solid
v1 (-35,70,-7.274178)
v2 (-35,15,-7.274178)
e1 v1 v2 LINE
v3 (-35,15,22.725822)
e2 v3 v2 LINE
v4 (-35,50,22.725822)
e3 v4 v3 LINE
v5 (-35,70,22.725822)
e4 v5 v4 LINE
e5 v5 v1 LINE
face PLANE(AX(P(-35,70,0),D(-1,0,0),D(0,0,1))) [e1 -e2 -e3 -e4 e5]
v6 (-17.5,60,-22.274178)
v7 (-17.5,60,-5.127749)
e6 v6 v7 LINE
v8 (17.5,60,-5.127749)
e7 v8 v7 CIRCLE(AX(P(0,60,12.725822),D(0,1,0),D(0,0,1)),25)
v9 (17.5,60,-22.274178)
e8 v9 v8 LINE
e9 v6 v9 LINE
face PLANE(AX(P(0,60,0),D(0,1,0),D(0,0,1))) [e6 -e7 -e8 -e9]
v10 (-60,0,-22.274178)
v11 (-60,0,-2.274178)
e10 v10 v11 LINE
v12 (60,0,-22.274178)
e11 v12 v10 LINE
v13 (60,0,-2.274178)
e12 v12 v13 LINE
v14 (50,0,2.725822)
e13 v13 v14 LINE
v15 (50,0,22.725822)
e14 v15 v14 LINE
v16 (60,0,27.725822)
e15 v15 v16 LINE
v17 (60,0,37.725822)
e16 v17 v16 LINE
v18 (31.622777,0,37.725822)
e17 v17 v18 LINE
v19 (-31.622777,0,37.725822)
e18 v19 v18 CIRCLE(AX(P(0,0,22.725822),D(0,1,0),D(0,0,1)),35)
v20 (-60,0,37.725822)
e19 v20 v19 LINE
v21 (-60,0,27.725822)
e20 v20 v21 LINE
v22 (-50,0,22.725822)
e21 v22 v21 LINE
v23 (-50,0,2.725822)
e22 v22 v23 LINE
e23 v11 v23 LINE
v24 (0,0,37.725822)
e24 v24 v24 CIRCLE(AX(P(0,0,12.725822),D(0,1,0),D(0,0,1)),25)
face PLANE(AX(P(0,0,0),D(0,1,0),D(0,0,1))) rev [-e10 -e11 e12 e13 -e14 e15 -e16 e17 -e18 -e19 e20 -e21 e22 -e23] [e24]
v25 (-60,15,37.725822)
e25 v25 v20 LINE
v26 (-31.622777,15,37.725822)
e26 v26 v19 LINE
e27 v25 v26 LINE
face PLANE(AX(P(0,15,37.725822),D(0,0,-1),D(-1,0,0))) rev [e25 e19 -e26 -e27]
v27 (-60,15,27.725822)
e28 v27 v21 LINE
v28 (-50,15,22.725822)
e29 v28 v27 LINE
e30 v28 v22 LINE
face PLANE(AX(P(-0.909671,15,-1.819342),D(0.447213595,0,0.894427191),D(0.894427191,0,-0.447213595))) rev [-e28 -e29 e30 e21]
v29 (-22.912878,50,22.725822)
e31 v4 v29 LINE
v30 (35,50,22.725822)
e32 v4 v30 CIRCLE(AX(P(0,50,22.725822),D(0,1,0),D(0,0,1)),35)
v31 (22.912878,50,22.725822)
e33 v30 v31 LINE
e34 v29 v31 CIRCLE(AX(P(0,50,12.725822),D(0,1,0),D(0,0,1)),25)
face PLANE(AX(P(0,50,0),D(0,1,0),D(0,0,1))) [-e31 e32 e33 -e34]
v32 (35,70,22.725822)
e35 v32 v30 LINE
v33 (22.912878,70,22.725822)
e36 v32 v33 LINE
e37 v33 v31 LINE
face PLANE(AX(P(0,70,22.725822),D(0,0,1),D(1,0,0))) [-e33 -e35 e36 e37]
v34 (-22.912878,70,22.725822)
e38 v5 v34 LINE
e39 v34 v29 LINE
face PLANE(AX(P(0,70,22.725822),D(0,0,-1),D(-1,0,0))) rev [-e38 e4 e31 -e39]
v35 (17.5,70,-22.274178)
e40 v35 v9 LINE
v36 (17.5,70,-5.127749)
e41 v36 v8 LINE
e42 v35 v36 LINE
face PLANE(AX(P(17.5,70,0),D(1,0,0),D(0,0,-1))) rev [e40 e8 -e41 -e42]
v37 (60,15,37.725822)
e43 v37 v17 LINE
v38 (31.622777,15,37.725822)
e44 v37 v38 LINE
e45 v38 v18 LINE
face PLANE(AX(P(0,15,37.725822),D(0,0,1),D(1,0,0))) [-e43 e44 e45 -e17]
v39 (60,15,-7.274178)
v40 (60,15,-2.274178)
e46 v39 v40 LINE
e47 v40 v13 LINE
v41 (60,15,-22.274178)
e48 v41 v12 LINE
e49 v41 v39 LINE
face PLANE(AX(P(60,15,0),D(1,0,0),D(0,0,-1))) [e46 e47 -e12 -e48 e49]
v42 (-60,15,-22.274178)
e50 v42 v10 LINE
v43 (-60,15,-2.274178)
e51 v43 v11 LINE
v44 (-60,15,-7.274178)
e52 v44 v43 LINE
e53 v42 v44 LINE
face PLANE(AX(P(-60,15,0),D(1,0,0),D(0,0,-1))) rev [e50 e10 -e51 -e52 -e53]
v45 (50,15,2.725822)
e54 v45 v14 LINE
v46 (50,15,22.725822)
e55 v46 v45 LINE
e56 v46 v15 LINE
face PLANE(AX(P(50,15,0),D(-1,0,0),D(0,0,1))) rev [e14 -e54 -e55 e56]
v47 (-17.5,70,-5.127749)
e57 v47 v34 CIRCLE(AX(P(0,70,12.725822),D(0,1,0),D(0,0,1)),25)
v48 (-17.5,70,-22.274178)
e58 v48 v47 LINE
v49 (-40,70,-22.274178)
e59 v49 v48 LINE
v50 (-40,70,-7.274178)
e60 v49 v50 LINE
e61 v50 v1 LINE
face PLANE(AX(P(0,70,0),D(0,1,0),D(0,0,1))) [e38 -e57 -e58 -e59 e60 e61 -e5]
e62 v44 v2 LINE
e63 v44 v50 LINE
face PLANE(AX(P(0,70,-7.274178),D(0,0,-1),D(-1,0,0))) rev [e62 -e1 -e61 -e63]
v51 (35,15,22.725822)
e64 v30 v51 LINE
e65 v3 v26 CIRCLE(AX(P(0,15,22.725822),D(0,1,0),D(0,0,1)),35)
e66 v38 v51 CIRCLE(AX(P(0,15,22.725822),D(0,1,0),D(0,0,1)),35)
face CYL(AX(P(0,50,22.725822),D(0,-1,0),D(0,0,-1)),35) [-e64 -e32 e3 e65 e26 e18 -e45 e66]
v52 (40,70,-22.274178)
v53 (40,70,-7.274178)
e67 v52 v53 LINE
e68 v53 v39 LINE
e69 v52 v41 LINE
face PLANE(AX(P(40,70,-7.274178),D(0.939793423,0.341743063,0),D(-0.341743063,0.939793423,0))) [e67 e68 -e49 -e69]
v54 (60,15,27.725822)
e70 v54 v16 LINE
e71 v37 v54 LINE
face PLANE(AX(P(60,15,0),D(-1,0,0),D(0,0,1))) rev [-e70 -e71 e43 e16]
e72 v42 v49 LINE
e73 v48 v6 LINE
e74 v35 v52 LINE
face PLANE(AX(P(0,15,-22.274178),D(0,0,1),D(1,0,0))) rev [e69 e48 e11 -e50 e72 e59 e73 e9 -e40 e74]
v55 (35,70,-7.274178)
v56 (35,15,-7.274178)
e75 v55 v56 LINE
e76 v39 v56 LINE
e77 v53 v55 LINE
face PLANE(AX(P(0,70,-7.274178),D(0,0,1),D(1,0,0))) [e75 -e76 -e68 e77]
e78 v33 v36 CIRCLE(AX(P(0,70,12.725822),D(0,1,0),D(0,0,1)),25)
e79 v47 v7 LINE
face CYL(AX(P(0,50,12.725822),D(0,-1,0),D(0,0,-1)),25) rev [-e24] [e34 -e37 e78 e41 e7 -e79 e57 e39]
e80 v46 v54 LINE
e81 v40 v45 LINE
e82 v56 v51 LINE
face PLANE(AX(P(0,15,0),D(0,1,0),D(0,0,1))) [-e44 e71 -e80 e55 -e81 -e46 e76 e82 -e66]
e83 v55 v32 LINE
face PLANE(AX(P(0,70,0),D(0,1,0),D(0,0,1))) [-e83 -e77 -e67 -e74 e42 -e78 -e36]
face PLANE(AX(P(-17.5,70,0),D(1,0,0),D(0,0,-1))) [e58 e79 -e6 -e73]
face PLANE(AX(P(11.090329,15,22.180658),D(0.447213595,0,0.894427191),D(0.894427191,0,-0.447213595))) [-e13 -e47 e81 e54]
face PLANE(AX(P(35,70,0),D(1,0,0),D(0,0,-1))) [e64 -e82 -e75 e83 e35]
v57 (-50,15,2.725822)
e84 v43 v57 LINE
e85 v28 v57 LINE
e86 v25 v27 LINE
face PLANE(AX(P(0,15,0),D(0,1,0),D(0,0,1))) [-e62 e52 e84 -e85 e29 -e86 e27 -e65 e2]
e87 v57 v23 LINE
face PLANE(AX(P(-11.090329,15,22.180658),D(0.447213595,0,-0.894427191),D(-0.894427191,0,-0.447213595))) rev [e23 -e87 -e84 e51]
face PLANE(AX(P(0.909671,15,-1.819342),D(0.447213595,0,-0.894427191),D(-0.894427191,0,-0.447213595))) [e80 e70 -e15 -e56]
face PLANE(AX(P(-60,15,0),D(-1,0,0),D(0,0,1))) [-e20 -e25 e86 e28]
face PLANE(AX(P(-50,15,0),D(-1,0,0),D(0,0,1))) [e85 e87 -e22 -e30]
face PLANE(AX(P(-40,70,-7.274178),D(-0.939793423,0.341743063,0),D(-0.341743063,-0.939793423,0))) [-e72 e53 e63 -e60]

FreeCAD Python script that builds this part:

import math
import FreeCAD as App
import Part
import Sketcher
Q = App.Units.Quantity


def add_polygon(sketch, points):
    """Adds a closed chain of lines whose ends are joined by coincident constraints."""
    first, n = sketch.GeometryCount, len(points)
    for a, b in zip(points, points[1:] + points[:1]):
        sketch.addGeometry(Part.LineSegment(App.Vector(*a, 0), App.Vector(*b, 0)), False)
    for i in range(n):
        sketch.addConstraint(Sketcher.Constraint("Coincident", first + i, 2, first + (i + 1) % n, 1))

doc = App.newDocument("Part")
body = doc.addObject("PartDesign::Body", "Body")

sketch1 = body.newObject("Sketcher::SketchObject", "Sketch")
sketch1.AttachmentSupport = (doc.getObject("XZ_Plane"), [""])
sketch1.MapMode = "FlatFace"
sketch1.addGeometry([
    Part.ArcOfCircle(Part.Circle(App.Vector(0, 22.725822, 0), App.Vector(0, 0, 1), 35), math.radians(154.623066), math.radians(180)),
    Part.LineSegment(App.Vector(-35, 22.725822, 0), App.Vector(-35, -7.274178, 0)),
    Part.LineSegment(App.Vector(-35, -7.274178, 0), App.Vector(-40, -7.274178, 0)),
    Part.LineSegment(App.Vector(-40, -7.274178, 0), App.Vector(-40, -22.274178, 0)),
    Part.LineSegment(App.Vector(-40, -22.274178, 0), App.Vector(-60, -22.274178, 0)),
    Part.LineSegment(App.Vector(-60, -22.274178, 0), App.Vector(-60, -2.274178, 0)),
    Part.LineSegment(App.Vector(-60, -2.274178, 0), App.Vector(-50, 2.725822, 0)),
    Part.LineSegment(App.Vector(-50, 2.725822, 0), App.Vector(-50, 22.725822, 0)),
    Part.LineSegment(App.Vector(-50, 22.725822, 0), App.Vector(-60, 27.725822, 0)),
    Part.LineSegment(App.Vector(-60, 27.725822, 0), App.Vector(-60, 37.725822, 0)),
    Part.LineSegment(App.Vector(-60, 37.725822, 0), App.Vector(-31.622777, 37.725822, 0)),
], False)
sketch1.addConstraint([
    Sketcher.Constraint("Tangent", 0, 2, 1, 1),
    Sketcher.Constraint("Coincident", 1, 2, 2, 1),
    Sketcher.Constraint("Coincident", 2, 2, 3, 1),
    Sketcher.Constraint("Coincident", 3, 2, 4, 1),
    Sketcher.Constraint("Coincident", 4, 2, 5, 1),
    Sketcher.Constraint("Coincident", 5, 2, 6, 1),
    Sketcher.Constraint("Coincident", 6, 2, 7, 1),
    Sketcher.Constraint("Coincident", 7, 2, 8, 1),
    Sketcher.Constraint("Coincident", 8, 2, 9, 1),
    Sketcher.Constraint("Coincident", 9, 2, 10, 1),
    Sketcher.Constraint("Coincident", 10, 2, 0, 1),
    Sketcher.Constraint("Vertical", 1),
    Sketcher.Constraint("Horizontal", 2),
    Sketcher.Constraint("Vertical", 3),
    Sketcher.Constraint("Horizontal", 4),
    Sketcher.Constraint("Vertical", 5),
    Sketcher.Constraint("Vertical", 7),
    Sketcher.Constraint("Vertical", 9),
    Sketcher.Constraint("Horizontal", 10),
    Sketcher.Constraint("PointOnObject", 0, 3, -2),
    Sketcher.Constraint("Horizontal", 0, 2, 7, 2),
    Sketcher.Constraint("Vertical", 5, 2, 8, 2),
    Sketcher.Constraint("Equal", 4, 5),
    Sketcher.Constraint("Equal", 5, 7),
    Sketcher.Constraint("Equal", 6, 8),
    Sketcher.Constraint("Radius", 0, Q("35 mm")),
    Sketcher.Constraint("DistanceX", 2, 2, 2, 1, Q("5 mm")),
    Sketcher.Constraint("DistanceX", 4, 2, 4, 1, Q("20 mm")),
    Sketcher.Constraint("DistanceY", 1, 2, 1, 1, Q("30 mm")),
    Sketcher.Constraint("DistanceY", 3, 2, 3, 1, Q("15 mm")),
    Sketcher.Constraint("DistanceY", 9, 1, 9, 2, Q("10 mm")),
    Sketcher.Constraint("DistanceX", 6, 2, -1, 1, Q("50 mm")),
    Sketcher.Constraint("DistanceY", -1, 1, 0, 3, Q("22.725822 mm")),
])
pad1 = body.newObject("PartDesign::Pad", "Pad")
pad1.Profile = sketch1
pad1.Length = 15
pad1.Reversed = True
body2 = doc.addObject("PartDesign::Body", "Body001")

sketch2 = body2.newObject("Sketcher::SketchObject", "Sketch001")
sketch2.AttachmentSupport = (doc.getObject("XZ_Plane001"), [""])
sketch2.MapMode = "FlatFace"
sketch2.addGeometry([
    Part.ArcOfCircle(Part.Circle(App.Vector(0, 22.725822, 0), App.Vector(0, 0, 1), 35), math.radians(0), math.radians(25.376934)),
    Part.LineSegment(App.Vector(31.622777, 37.725822, 0), App.Vector(60, 37.725822, 0)),
    Part.LineSegment(App.Vector(60, 37.725822, 0), App.Vector(60, 27.725822, 0)),
    Part.LineSegment(App.Vector(60, 27.725822, 0), App.Vector(50, 22.725822, 0)),
    Part.LineSegment(App.Vector(50, 22.725822, 0), App.Vector(50, 2.725822, 0)),
    Part.LineSegment(App.Vector(50, 2.725822, 0), App.Vector(60, -2.274178, 0)),
    Part.LineSegment(App.Vector(60, -2.274178, 0), App.Vector(60, -22.274178, 0)),
    Part.LineSegment(App.Vector(60, -22.274178, 0), App.Vector(40, -22.274178, 0)),
    Part.LineSegment(App.Vector(40, -22.274178, 0), App.Vector(40, -7.274178, 0)),
    Part.LineSegment(App.Vector(40, -7.274178, 0), App.Vector(35, -7.274178, 0)),
    Part.LineSegment(App.Vector(35, -7.274178, 0), App.Vector(35, 22.725822, 0)),
], False)
sketch2.addConstraint([
    Sketcher.Constraint("Coincident", 0, 2, 1, 1),
    Sketcher.Constraint("Coincident", 1, 2, 2, 1),
    Sketcher.Constraint("Coincident", 2, 2, 3, 1),
    Sketcher.Constraint("Coincident", 3, 2, 4, 1),
    Sketcher.Constraint("Coincident", 4, 2, 5, 1),
    Sketcher.Constraint("Coincident", 5, 2, 6, 1),
    Sketcher.Constraint("Coincident", 6, 2, 7, 1),
    Sketcher.Constraint("Coincident", 7, 2, 8, 1),
    Sketcher.Constraint("Coincident", 8, 2, 9, 1),
    Sketcher.Constraint("Coincident", 9, 2, 10, 1),
    Sketcher.Constraint("Tangent", 10, 2, 0, 1),
    Sketcher.Constraint("Horizontal", 1),
    Sketcher.Constraint("Vertical", 2),
    Sketcher.Constraint("Vertical", 4),
    Sketcher.Constraint("Vertical", 6),
    Sketcher.Constraint("Horizontal", 7),
    Sketcher.Constraint("Vertical", 8),
    Sketcher.Constraint("Horizontal", 9),
    Sketcher.Constraint("Vertical", 10),
    Sketcher.Constraint("PointOnObject", 0, 3, -2),
    Sketcher.Constraint("Horizontal", 0, 3, 3, 2),
    Sketcher.Constraint("Vertical", 2, 2, 5, 2),
    Sketcher.Constraint("Equal", 7, 4),
    Sketcher.Constraint("Equal", 4, 6),
    Sketcher.Constraint("Equal", 3, 5),
    Sketcher.Constraint("Radius", 0, Q("35 mm")),
    Sketcher.Constraint("DistanceX", 7, 2, 7, 1, Q("20 mm")),
    Sketcher.Constraint("DistanceX", 9, 2, 9, 1, Q("5 mm")),
    Sketcher.Constraint("DistanceY", 2, 2, 2, 1, Q("10 mm")),
    Sketcher.Constraint("DistanceY", 8, 1, 8, 2, Q("15 mm")),
    Sketcher.Constraint("DistanceY", 10, 1, 10, 2, Q("30 mm")),
    Sketcher.Constraint("DistanceX", -1, 1, 3, 2, Q("50 mm")),
    Sketcher.Constraint("DistanceY", -1, 1, 0, 3, Q("22.725822 mm")),
])
pad2 = body2.newObject("PartDesign::Pad", "Pad001")
pad2.Profile = sketch2
pad2.Length = 15
pad2.Reversed = True
body.AllowCompound = True
doc.recompute()

boolean = body.newObject("PartDesign::Boolean", "Boolean")
boolean.Type = "Fuse"
boolean.addObjects([body2])

sketch3 = body.newObject("Sketcher::SketchObject", "Sketch002")
sketch3.AttachmentSupport = (doc.getObject("XZ_Plane"), [""])
sketch3.MapMode = "FlatFace"
sketch3.addGeometry([
    Part.LineSegment(App.Vector(-22.912878, 22.725822, 0), App.Vector(-35, 22.725822, 0)),
    Part.ArcOfCircle(Part.Circle(App.Vector(0, 22.725822, 0), App.Vector(0, 0, 1), 35), math.radians(154.623066), math.radians(180)),
    Part.ArcOfCircle(Part.Circle(App.Vector(0, 22.725822, 0), App.Vector(0, 0, 1), 35), math.radians(90), math.radians(154.623066)),
    Part.ArcOfCircle(Part.Circle(App.Vector(0, 22.725822, 0), App.Vector(0, 0, 1), 35), math.radians(25.376934), math.radians(90)),
    Part.ArcOfCircle(Part.Circle(App.Vector(0, 22.725822, 0), App.Vector(0, 0, 1), 35), math.radians(0), math.radians(25.376934)),
    Part.LineSegment(App.Vector(35, 22.725822, 0), App.Vector(22.912878, 22.725822, 0)),
    Part.ArcOfCircle(Part.Circle(App.Vector(0, 12.725822, 0), App.Vector(0, 0, 1), 25), math.radians(23.578178), math.radians(90)),
    Part.ArcOfCircle(Part.Circle(App.Vector(0, 12.725822, 0), App.Vector(0, 0, 1), 25), math.radians(90), math.radians(156.421822)),
], False)
sketch3.addConstraint([
    Sketcher.Constraint("Coincident", 0, 2, 1, 2),
    Sketcher.Constraint("Tangent", 1, 1, 2, 2),
    Sketcher.Constraint("Tangent", 2, 1, 3, 2),
    Sketcher.Constraint("Tangent", 3, 1, 4, 2),
    Sketcher.Constraint("Coincident", 4, 1, 5, 1),
    Sketcher.Constraint("Coincident", 5, 2, 6, 1),
    Sketcher.Constraint("Tangent", 6, 2, 7, 1),
    Sketcher.Constraint("Coincident", 7, 2, 0, 1),
    Sketcher.Constraint("Horizontal", 0),
    Sketcher.Constraint("Horizontal", 5),
    Sketcher.Constraint("Coincident", 3, 3, 1, 3),
    Sketcher.Constraint("Equal", 3, 4),
    Sketcher.Constraint("Equal", 6, 7),
    Sketcher.Constraint("Symmetric", 1, 1, 3, 1, -2),
    Sketcher.Constraint("Symmetric", 5, 2, 7, 2, -2),
    Sketcher.Constraint("PointOnObject", 2, 1, -2),
    Sketcher.Constraint("PointOnObject", 6, 2, -2),
    Sketcher.Constraint("Horizontal", 4, 3, 0, 2),
    Sketcher.Constraint("Horizontal", 3, 1, 6, 2),
    Sketcher.Constraint("Radius", 1, Q("35 mm")),
    Sketcher.Constraint("Radius", 6, Q("25 mm")),
    Sketcher.Constraint("DistanceY", 6, 3, 1, 3, Q("10 mm")),
    Sketcher.Constraint("DistanceY", -1, 1, 1, 3, Q("22.725822 mm")),
])
pad3 = body.newObject("PartDesign::Pad", "Pad002")
pad3.Profile = sketch3
pad3.Length = 50
pad3.Reversed = True

sketch4 = body.newObject("Sketcher::SketchObject", "Sketch003")
sketch4.AttachmentSupport = (doc.getObject("XZ_Plane"), [""])
sketch4.MapMode = "FlatFace"
sketch4.addGeometry([
    Part.LineSegment(App.Vector(-35, -7.274178, 0), App.Vector(-35, 22.725822, 0)),
    Part.LineSegment(App.Vector(-35, 22.725822, 0), App.Vector(-22.912878, 22.725822, 0)),
    Part.ArcOfCircle(Part.Circle(App.Vector(0, 12.725822, 0), App.Vector(0, 0, 1), 25), math.radians(156.421822), math.radians(225.572996)),
    Part.LineSegment(App.Vector(-17.5, -5.127749, 0), App.Vector(-17.5, -22.274178, 0)),
    Part.LineSegment(App.Vector(-17.5, -22.274178, 0), App.Vector(-40, -22.274178, 0)),
    Part.LineSegment(App.Vector(-40, -22.274178, 0), App.Vector(-40, -7.274178, 0)),
    Part.LineSegment(App.Vector(-40, -7.274178, 0), App.Vector(-35, -7.274178, 0)),
    Part.ArcOfCircle(Part.Circle(App.Vector(0, 12.725822, 0), App.Vector(0, 0, 1), 25), math.radians(0), math.radians(23.578178)),
    Part.LineSegment(App.Vector(22.912878, 22.725822, 0), App.Vector(35, 22.725822, 0)),
    Part.LineSegment(App.Vector(35, 22.725822, 0), App.Vector(35, -7.274178, 0)),
    Part.LineSegment(App.Vector(35, -7.274178, 0), App.Vector(40, -7.274178, 0)),
    Part.LineSegment(App.Vector(40, -7.274178, 0), App.Vector(40, -22.274178, 0)),
    Part.LineSegment(App.Vector(40, -22.274178, 0), App.Vector(17.5, -22.274178, 0)),
    Part.LineSegment(App.Vector(17.5, -22.274178, 0), App.Vector(17.5, -5.127749, 0)),
    Part.ArcOfCircle(Part.Circle(App.Vector(0, 12.725822, 0), App.Vector(0, 0, 1), 25), math.radians(-45.572996), math.radians(0)),
], False)
sketch4.addConstraint([
    Sketcher.Constraint("Coincident", 0, 2, 1, 1),
    Sketcher.Constraint("Coincident", 1, 2, 2, 1),
    Sketcher.Constraint("Coincident", 2, 2, 3, 1),
    Sketcher.Constraint("Coincident", 3, 2, 4, 1),
    Sketcher.Constraint("Coincident", 4, 2, 5, 1),
    Sketcher.Constraint("Coincident", 5, 2, 6, 1),
    Sketcher.Constraint("Coincident", 6, 2, 0, 1),
    Sketcher.Constraint("Coincident", 7, 2, 8, 1),
    Sketcher.Constraint("Coincident", 8, 2, 9, 1),
    Sketcher.Constraint("Coincident", 9, 2, 10, 1),
    Sketcher.Constraint("Coincident", 10, 2, 11, 1),
    Sketcher.Constraint("Coincident", 11, 2, 12, 1),
    Sketcher.Constraint("Coincident", 12, 2, 13, 1),
    Sketcher.Constraint("Coincident", 13, 2, 14, 1),
    Sketcher.Constraint("Tangent", 14, 2, 7, 1),
    Sketcher.Constraint("Vertical", 0),
    Sketcher.Constraint("Horizontal", 1),
    Sketcher.Constraint("Vertical", 3),
    Sketcher.Constraint("Horizontal", 4),
    Sketcher.Constraint("Vertical", 5),
    Sketcher.Constraint("Horizontal", 6),
    Sketcher.Constraint("Horizontal", 8),
    Sketcher.Constraint("Vertical", 9),
    Sketcher.Constraint("Horizontal", 10),
    Sketcher.Constraint("Vertical", 11),
    Sketcher.Constraint("Horizontal", 12),
    Sketcher.Constraint("Vertical", 13),
    Sketcher.Constraint("Coincident", 7, 3, 2, 3),
    Sketcher.Constraint("Equal", 2, 7),
    Sketcher.Constraint("Equal", 7, 14),
    Sketcher.Constraint("Symmetric", 1, 2, 7, 2, -2),
    Sketcher.Constraint("Symmetric", 6, 2, 9, 2, -2),
    Sketcher.Constraint("Symmetric", 4, 2, 11, 2, -2),
    Sketcher.Constraint("Horizontal", 2, 2, 13, 2),
    Sketcher.Constraint("Horizontal", 7, 3, 14, 2),
    Sketcher.Constraint("Radius", 2, Q("25 mm")),
    Sketcher.Constraint("DistanceX", 6, 1, 6, 2, Q("5 mm")),
    Sketcher.Constraint("DistanceY", 0, 1, 0, 2, Q("30 mm")),
    Sketcher.Constraint("DistanceY", 5, 1, 5, 2, Q("15 mm")),
    Sketcher.Constraint("DistanceX", 4, 2, 4, 1, Q("22.5 mm")),
    Sketcher.Constraint("DistanceX", 0, 2, -1, 1, Q("35 mm")),
    Sketcher.Constraint("DistanceY", 7, 3, 0, 2, Q("10 mm")),
    Sketcher.Constraint("DistanceY", -1, 1, 2, 3, Q("12.725822 mm")),
])
pad4 = body.newObject("PartDesign::Pad", "Pad003")
pad4.Profile = sketch4
pad4.Length = 70
pad4.Reversed = True

sketch5 = body.newObject("Sketcher::SketchObject", "Sketch004")
sketch5.AttachmentSupport = (doc.getObject("XZ_Plane"), [""])
sketch5.MapMode = "FlatFace"
sketch5.addGeometry([
    Part.LineSegment(App.Vector(-17.5, -22.274178, 0), App.Vector(-17.5, -5.127749, 0)),
    Part.ArcOfCircle(Part.Circle(App.Vector(0, 12.725822, 0), App.Vector(0, 0, 1), 25), math.radians(-134.427004), math.radians(-90)),
    Part.ArcOfCircle(Part.Circle(App.Vector(0, 12.725822, 0), App.Vector(0, 0, 1), 25), math.radians(-90), math.radians(-45.572996)),
    Part.LineSegment(App.Vector(17.5, -5.127749, 0), App.Vector(17.5, -22.274178, 0)),
    Part.LineSegment(App.Vector(17.5, -22.274178, 0), App.Vector(-17.5, -22.274178, 0)),
], False)
sketch5.addConstraint([
    Sketcher.Constraint("Coincident", 0, 2, 1, 1),
    Sketcher.Constraint("Tangent", 1, 2, 2, 1),
    Sketcher.Constraint("Coincident", 2, 2, 3, 1),
    Sketcher.Constraint("Coincident", 3, 2, 4, 1),
    Sketcher.Constraint("Coincident", 4, 2, 0, 1),
    Sketcher.Constraint("Vertical", 0),
    Sketcher.Constraint("Vertical", 3),
    Sketcher.Constraint("Horizontal", 4),
    Sketcher.Constraint("Equal", 1, 2),
    Sketcher.Constraint("Symmetric", 0, 2, 2, 2, -2),
    Sketcher.Constraint("PointOnObject", 1, 2, -2),
    Sketcher.Constraint("Radius", 1, Q("25 mm")),
    Sketcher.Constraint("DistanceX", 4, 2, 4, 1, Q("35 mm")),
    Sketcher.Constraint("DistanceY", 3, 2, 1, 2, Q("10 mm")),
    Sketcher.Constraint("DistanceY", -1, 1, 1, 3, Q("12.725822 mm")),
])
pad5 = body.newObject("PartDesign::Pad", "Pad004")
pad5.Profile = sketch5
pad5.Length = 60
pad5.Reversed = True

sketch6 = body.newObject("Sketcher::SketchObject", "Sketch005")
sketch6.AttachmentSupport = (doc.getObject("XY_Plane"), [""])
sketch6.MapMode = "FlatFace"
sketch6.AttachmentOffset = App.Placement(App.Vector(0, 0, -22.274178), App.Rotation())
add_polygon(sketch6, [(-40, 15), (-60, 15), (-40, 70)])
add_polygon(sketch6, [(60, 15), (40, 15), (40, 70)])
sketch6.addConstraint([
    Sketcher.Constraint("Horizontal", 0),
    Sketcher.Constraint("Vertical", 2),
    Sketcher.Constraint("Horizontal", 3),
    Sketcher.Constraint("Vertical", 4),
    Sketcher.Constraint("Symmetric", 2, 2, 3, 2, -2),
    Sketcher.Constraint("Horizontal", 1, 2, 4, 2),
    Sketcher.Constraint("Equal", 0, 3),
    Sketcher.Constraint("DistanceX", 0, 2, 0, 1, Q("20 mm")),
    Sketcher.Constraint("DistanceY", 2, 2, 2, 1, Q("55 mm")),
    Sketcher.Constraint("DistanceX", 0, 2, -1, 1, Q("60 mm")),
    Sketcher.Constraint("DistanceY", -1, 1, 0, 2, Q("15 mm")),
])
pad6 = body.newObject("PartDesign::Pad", "Pad005")
pad6.Profile = sketch6
pad6.Length = 15

doc.recompute()
